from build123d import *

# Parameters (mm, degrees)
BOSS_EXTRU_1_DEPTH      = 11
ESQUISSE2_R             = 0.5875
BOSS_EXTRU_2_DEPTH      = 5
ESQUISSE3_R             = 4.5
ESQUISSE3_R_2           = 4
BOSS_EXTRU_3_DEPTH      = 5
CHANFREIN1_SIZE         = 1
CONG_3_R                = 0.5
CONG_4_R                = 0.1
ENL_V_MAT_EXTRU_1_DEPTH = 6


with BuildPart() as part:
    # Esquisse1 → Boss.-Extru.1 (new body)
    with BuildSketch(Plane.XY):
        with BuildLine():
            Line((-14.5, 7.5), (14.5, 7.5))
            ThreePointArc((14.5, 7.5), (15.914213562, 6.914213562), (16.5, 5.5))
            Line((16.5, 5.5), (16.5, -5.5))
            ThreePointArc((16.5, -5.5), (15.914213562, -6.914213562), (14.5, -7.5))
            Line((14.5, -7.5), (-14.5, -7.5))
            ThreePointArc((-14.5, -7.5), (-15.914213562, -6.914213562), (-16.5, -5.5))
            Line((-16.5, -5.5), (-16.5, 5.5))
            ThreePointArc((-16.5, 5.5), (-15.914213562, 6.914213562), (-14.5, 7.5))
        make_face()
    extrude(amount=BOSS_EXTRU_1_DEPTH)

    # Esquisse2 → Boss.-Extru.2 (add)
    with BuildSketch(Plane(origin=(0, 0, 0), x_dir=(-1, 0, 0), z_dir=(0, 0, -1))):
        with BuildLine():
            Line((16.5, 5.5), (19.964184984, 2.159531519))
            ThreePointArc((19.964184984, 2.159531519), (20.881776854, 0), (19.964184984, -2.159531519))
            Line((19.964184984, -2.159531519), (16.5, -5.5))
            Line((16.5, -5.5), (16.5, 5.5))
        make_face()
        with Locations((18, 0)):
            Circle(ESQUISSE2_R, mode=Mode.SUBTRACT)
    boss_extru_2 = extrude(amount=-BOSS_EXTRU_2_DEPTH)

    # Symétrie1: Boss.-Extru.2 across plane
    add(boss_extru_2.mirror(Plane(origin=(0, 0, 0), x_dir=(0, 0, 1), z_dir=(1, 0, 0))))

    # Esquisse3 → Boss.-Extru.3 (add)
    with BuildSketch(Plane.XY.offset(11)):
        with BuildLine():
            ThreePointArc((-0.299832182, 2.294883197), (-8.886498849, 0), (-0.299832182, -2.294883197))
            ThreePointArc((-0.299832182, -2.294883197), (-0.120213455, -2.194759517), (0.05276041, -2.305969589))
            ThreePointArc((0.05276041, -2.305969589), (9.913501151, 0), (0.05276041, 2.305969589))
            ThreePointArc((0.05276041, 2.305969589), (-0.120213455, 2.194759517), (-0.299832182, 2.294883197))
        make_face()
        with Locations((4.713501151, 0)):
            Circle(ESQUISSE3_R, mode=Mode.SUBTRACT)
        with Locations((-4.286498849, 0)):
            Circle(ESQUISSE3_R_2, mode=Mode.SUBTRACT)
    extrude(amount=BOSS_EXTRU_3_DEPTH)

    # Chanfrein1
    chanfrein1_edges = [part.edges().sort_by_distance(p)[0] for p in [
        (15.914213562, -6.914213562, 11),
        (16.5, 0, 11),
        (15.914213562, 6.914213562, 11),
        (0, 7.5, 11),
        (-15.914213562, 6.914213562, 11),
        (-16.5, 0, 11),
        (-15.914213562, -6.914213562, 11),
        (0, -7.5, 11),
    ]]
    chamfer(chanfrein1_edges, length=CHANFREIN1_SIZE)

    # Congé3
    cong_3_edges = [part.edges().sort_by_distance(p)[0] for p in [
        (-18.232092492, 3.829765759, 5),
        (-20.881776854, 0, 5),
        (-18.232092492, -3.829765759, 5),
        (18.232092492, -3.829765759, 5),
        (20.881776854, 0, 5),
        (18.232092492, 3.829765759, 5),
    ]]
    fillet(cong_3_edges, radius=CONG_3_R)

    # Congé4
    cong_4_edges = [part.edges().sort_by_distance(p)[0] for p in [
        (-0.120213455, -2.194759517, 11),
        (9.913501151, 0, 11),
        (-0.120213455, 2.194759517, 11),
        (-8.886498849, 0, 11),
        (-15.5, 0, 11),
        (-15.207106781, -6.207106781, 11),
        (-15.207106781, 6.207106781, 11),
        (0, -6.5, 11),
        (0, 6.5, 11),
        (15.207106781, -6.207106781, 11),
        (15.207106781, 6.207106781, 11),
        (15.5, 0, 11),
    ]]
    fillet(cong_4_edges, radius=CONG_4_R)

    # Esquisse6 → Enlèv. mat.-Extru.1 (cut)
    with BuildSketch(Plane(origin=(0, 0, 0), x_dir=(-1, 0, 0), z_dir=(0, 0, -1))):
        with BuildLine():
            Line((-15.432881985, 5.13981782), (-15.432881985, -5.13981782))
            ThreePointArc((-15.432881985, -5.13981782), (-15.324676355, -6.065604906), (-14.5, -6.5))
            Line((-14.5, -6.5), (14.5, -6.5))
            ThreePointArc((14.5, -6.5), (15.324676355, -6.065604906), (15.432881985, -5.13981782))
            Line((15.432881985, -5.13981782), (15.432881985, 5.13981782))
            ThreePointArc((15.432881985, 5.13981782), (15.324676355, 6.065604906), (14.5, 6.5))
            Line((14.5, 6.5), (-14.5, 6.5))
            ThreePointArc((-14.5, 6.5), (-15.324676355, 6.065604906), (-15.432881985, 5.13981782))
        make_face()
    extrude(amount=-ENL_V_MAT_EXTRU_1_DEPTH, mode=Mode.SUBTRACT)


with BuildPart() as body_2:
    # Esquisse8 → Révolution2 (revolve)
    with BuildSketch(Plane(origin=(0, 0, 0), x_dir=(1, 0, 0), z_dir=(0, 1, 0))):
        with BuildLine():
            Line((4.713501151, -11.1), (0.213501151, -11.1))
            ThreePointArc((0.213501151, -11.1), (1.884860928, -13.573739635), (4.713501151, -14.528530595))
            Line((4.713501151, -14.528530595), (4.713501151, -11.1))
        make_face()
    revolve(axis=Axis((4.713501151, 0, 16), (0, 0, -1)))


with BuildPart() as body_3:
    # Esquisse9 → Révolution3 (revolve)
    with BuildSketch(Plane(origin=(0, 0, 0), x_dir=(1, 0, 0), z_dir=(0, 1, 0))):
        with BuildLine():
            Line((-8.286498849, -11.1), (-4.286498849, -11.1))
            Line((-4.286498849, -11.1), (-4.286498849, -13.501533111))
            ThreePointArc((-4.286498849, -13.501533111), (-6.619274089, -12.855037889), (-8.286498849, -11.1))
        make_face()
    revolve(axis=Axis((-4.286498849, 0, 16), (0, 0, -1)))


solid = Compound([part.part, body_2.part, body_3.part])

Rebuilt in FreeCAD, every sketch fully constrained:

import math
import FreeCAD as App
import Part
import Sketcher

V = App.Vector


def edges_at(feature, points):
    """Names of the edges that pass closest to the given points."""
    edges = feature.Shape.Edges
    near = lambda p: min(range(len(edges)), key=lambda i: edges[i].distToShape(Part.Vertex(*p))[0])
    return sorted({f"Edge{near(p) + 1}" for p in points})

doc = App.newDocument("Part")
body = doc.addObject("PartDesign::Body", "Body")

sketch1 = doc.addObject("Sketcher::SketchObject", "Sketch")
body.addObject(sketch1)
sketch1.AttachmentSupport = (doc.XY_Plane, [""])
sketch1.MapMode = "FlatFace"
sketch1.addGeometry([
    Part.LineSegment(V(14.5, 7.5, 0), V(-14.5, 7.5, 0)),
    Part.ArcOfCircle(Part.Circle(V(-14.5, 5.5, 0), V(0, 0, 1), 2), math.radians(90), math.radians(180)),
    Part.LineSegment(V(-16.5, 5.5, 0), V(-16.5, -5.5, 0)),
    Part.ArcOfCircle(Part.Circle(V(-14.5, -5.5, 0), V(0, 0, 1), 2), math.radians(-180), math.radians(-90)),
    Part.LineSegment(V(-14.5, -7.5, 0), V(14.5, -7.5, 0)),
    Part.ArcOfCircle(Part.Circle(V(14.5, -5.5, 0), V(0, 0, 1), 2), math.radians(-90), math.radians(0)),
    Part.LineSegment(V(16.5, -5.5, 0), V(16.5, 5.5, 0)),
    Part.ArcOfCircle(Part.Circle(V(14.5, 5.5, 0), V(0, 0, 1), 2), math.radians(0), math.radians(90)),
], False)
sketch1.addConstraint([
    Sketcher.Constraint("Tangent", 0, 2, 1, 1),
    Sketcher.Constraint("Tangent", 1, 2, 2, 1),
    Sketcher.Constraint("Tangent", 2, 2, 3, 1),
    Sketcher.Constraint("Tangent", 3, 2, 4, 1),
    Sketcher.Constraint("Tangent", 4, 2, 5, 1),
    Sketcher.Constraint("Tangent", 5, 2, 6, 1),
    Sketcher.Constraint("Tangent", 6, 2, 7, 1),
    Sketcher.Constraint("Tangent", 7, 2, 0, 1),
    Sketcher.Constraint("Horizontal", 0),
    Sketcher.Constraint("Vertical", 2),
    Sketcher.Constraint("Horizontal", 4),
    Sketcher.Constraint("Vertical", 6),
    Sketcher.Constraint("Equal", 1, 3),
    Sketcher.Constraint("Equal", 3, 5),
    Sketcher.Constraint("Equal", 5, 7),
    Sketcher.Constraint("Symmetric", 1, 3, 5, 3, -1, 1),
    Sketcher.Constraint("Radius", 1, 2.0),
    Sketcher.Constraint("DistanceX", 0, 2, 0, 1, 29.0),
    Sketcher.Constraint("DistanceY", 2, 2, 2, 1, 11.0),
])
pad1 = doc.addObject("PartDesign::Pad", "Pad")
body.addObject(pad1)
pad1.Profile = sketch1
pad1.Length = 11

sketch2 = doc.addObject("Sketcher::SketchObject", "Sketch001")
body.addObject(sketch2)
sketch2.AttachmentSupport = (doc.XY_Plane, [""])
sketch2.MapMode = "FlatFace"
sketch2.addGeometry([
    Part.LineSegment(V(-20, 2.2, 0), V(-16.5, 5.5, 0)),
    Part.LineSegment(V(-16.5, 5.5, 0), V(-16.5, -5.5, 0)),
    Part.LineSegment(V(-16.5, -5.5, 0), V(-20, -2.2, 0)),
    Part.ArcOfCircle(Part.Circle(V(-17.9, 0, 0), V(0, 0, 1), 3), math.radians(134), math.radians(226)),
    Part.Circle(V(-18, 0, 0), V(0, 0, 1), 0.6),
], False)
sketch2.addConstraint([
    Sketcher.Constraint("Coincident", 0, 2, 1, 1),
    Sketcher.Constraint("Coincident", 1, 2, 2, 1),
    Sketcher.Constraint("Tangent", 2, 2, 3, 2),
    Sketcher.Constraint("Tangent", 3, 1, 0, 1),
    Sketcher.Constraint("Vertical", 1),
    Sketcher.Constraint("Symmetric", 2, 2, 3, 1, -1),
    Sketcher.Constraint("PointOnObject", 4, 3, -1),
    Sketcher.Constraint("Radius", 3, 3.0),
    Sketcher.Constraint("DistanceY", 1, 2, 1, 1, 11.0),
    Sketcher.Constraint("Diameter", 4, 1.175),
    Sketcher.Constraint("DistanceX", 4, 3, -1, 1, 18.0),
    Sketcher.Constraint("DistanceX", 0, 2, -1, 1, 16.5),
    Sketcher.Constraint("Distance", 0, 4.812412),
])
pad2 = doc.addObject("PartDesign::Pad", "Pad001")
body.addObject(pad2)
pad2.Profile = sketch2
pad2.Length = 5
doc.recompute()

mirrored = doc.addObject("PartDesign::Mirrored", "Mirrored")
body.addObject(mirrored)
mirrored.Originals = [pad2]
mirrored.MirrorPlane = (doc.YZ_Plane, [""])
body.Tip = mirrored

sketch3 = doc.addObject("Sketcher::SketchObject", "Sketch002")
body.addObject(sketch3)
sketch3.AttachmentSupport = (doc.XY_Plane, [""])
sketch3.MapMode = "FlatFace"
sketch3.AttachmentOffset = App.Placement(V(0, 0, 11), App.Rotation())
sketch3.addGeometry([
    Part.ArcOfCircle(Part.Circle(V(-4.29, 0, 0), V(0, 0, 1), 4.6), math.radians(30), math.radians(330)),
    Part.ArcOfCircle(Part.Circle(V(-0.13, -2.39, 0), V(0, 0, 1), 0.2), math.radians(26), math.radians(150)),
    Part.ArcOfCircle(Part.Circle(V(4.71, 0, 0), V(0, 0, 1), 5.2), math.radians(-154), math.radians(154)),
    Part.ArcOfCircle(Part.Circle(V(-0.13, 2.39, 0), V(0, 0, 1), 0.2), math.radians(-150), math.radians(-26)),
    Part.Circle(V(-4.29, 0, 0), V(0, 0, 1), 4),
    Part.Circle(V(4.71, 0, 0), V(0, 0, 1), 4.5),
], False)
sketch3.addConstraint([
    Sketcher.Constraint("Tangent", 0, 2, 1, 2),
    Sketcher.Constraint("Tangent", 1, 1, 2, 1),
    Sketcher.Constraint("Tangent", 2, 2, 3, 2),
    Sketcher.Constraint("Tangent", 3, 1, 0, 1),
    Sketcher.Constraint("Coincident", 4, 3, 0, 3),
    Sketcher.Constraint("Coincident", 5, 3, 2, 3),
    Sketcher.Constraint("Equal", 1, 3),
    Sketcher.Constraint("Symmetric", 1, 3, 3, 3, -1),
    Sketcher.Constraint("Diameter", 4, 8.0),
    Sketcher.Constraint("Diameter", 5, 9.0),
    Sketcher.Constraint("Radius", 0, 4.6),
    Sketcher.Constraint("Radius", 1, 0.2),
    Sketcher.Constraint("Radius", 2, 5.2),
    Sketcher.Constraint("DistanceX", 0, 3, 2, 3, 9.0),
    Sketcher.Constraint("DistanceX", 0, 3, -1, 1, 4.286499),
])
pad3 = doc.addObject("PartDesign::Pad", "Pad002")
body.addObject(pad3)
pad3.Profile = sketch3
pad3.Length = 5
doc.recompute()

chamfer = doc.addObject("PartDesign::Chamfer", "Chamfer")
body.addObject(chamfer)
chamfer.Base = (pad3, edges_at(pad3, [
    (15.914, -6.914, 11),
    (16.5, 0, 11),
    (15.914, 6.914, 11),
    (0, 7.5, 11),
    (-15.914, 6.914, 11),
    (-16.5, 0, 11),
    (-15.914, -6.914, 11),
    (0, -7.5, 11),
]))
chamfer.Size = 1
doc.recompute()

fillet = doc.addObject("PartDesign::Fillet", "Fillet")
body.addObject(fillet)
fillet.Base = (chamfer, edges_at(chamfer, [
    (-18.232, 3.83, 5),
    (-20.882, 0, 5),
    (-18.232, -3.83, 5),
    (18.232, -3.83, 5),
    (20.882, 0, 5),
    (18.232, 3.83, 5),
]))
fillet.Radius = 0.5
doc.recompute()

fillet2 = doc.addObject("PartDesign::Fillet", "Fillet001")
body.addObject(fillet2)
fillet2.Base = (fillet, edges_at(fillet, [
    (-0.12, -2.195, 11),
    (9.914, 0, 11),
    (-0.12, 2.195, 11),
    (-8.886, 0, 11),
    (-15.5, 0, 11),
    (-15.207, -6.207, 11),
    (-15.207, 6.207, 11),
    (0, -6.5, 11),
    (0, 6.5, 11),
    (15.207, -6.207, 11),
    (15.207, 6.207, 11),
    (15.5, 0, 11),
]))
fillet2.Radius = 0.1

sketch4 = doc.addObject("Sketcher::SketchObject", "Sketch003")
body.addObject(sketch4)
sketch4.AttachmentSupport = (doc.XY_Plane, [""])
sketch4.MapMode = "FlatFace"
sketch4.addGeometry([
    Part.LineSegment(V(15.4, 5.1, 0), V(15.4, -5.1, 0)),
    Part.ArcOfCircle(Part.Circle(V(14.5, -5.5, 0), V(0, 0, 1), 1), math.radians(-90), math.radians(21)),
    Part.LineSegment(V(14.5, -6.5, 0), V(-14.5, -6.5, 0)),
    Part.ArcOfCircle(Part.Circle(V(-14.5, -5.5, 0), V(0, 0, 1), 1), math.radians(159), math.radians(270)),
    Part.LineSegment(V(-15.4, -5.1, 0), V(-15.4, 5.1, 0)),
    Part.ArcOfCircle(Part.Circle(V(-14.5, 5.5, 0), V(0, 0, 1), 1), math.radians(90), math.radians(201)),
    Part.LineSegment(V(-14.5, 6.5, 0), V(14.5, 6.5, 0)),
    Part.ArcOfCircle(Part.Circle(V(14.5, 5.5, 0), V(0, 0, 1), 1), math.radians(-21), math.radians(90)),
], False)
sketch4.addConstraint([
    Sketcher.Constraint("Coincident", 0, 2, 1, 2),
    Sketcher.Constraint("Tangent", 1, 1, 2, 1),
    Sketcher.Constraint("Tangent", 2, 2, 3, 2),
    Sketcher.Constraint("Coincident", 3, 1, 4, 1),
    Sketcher.Constraint("Coincident", 4, 2, 5, 2),
    Sketcher.Constraint("Tangent", 5, 1, 6, 1),
    Sketcher.Constraint("Tangent", 6, 2, 7, 2),
    Sketcher.Constraint("Coincident", 7, 1, 0, 1),
    Sketcher.Constraint("Vertical", 0),
    Sketcher.Constraint("Horizontal", 2),
    Sketcher.Constraint("Vertical", 4),
    Sketcher.Constraint("Horizontal", 6),
    Sketcher.Constraint("Equal", 1, 3),
    Sketcher.Constraint("Equal", 3, 5),
    Sketcher.Constraint("Equal", 5, 7),
    Sketcher.Constraint("Symmetric", 1, 3, 5, 3, -1, 1),
    Sketcher.Constraint("Symmetric", 3, 1, 7, 1, -1, 1),
    Sketcher.Constraint("Horizontal", 0, 2, 3, 1),
    Sketcher.Constraint("Radius", 1, 1.0),
    Sketcher.Constraint("DistanceX", 2, 2, 2, 1, 29.0),
    Sketcher.Constraint("DistanceY", 3, 3, 5, 3, 11.0),
    Sketcher.Constraint("DistanceY", 0, 2, 0, 1, 10.279636),
])
pocket1 = doc.addObject("PartDesign::Pocket", "Pocket")
body.addObject(pocket1)
pocket1.Profile = sketch4
pocket1.Length = 6
pocket1.Reversed = True
body2 = doc.addObject("PartDesign::Body", "Body001")

sketch5 = doc.addObject("Sketcher::SketchObject", "Sketch004")
body2.addObject(sketch5)
sketch5.AttachmentSupport = (doc.getObject("XZ_Plane001"), [""])
sketch5.MapMode = "FlatFace"
sketch5.addGeometry([
    Part.LineSegment(V(4.7, 11.1, 0), V(0.2, 11.1, 0)),
    Part.ArcOfCircle(Part.Circle(V(4.7, 9.9, 0), V(0, 0, 1), 4.7), math.radians(90), math.radians(165)),
    Part.LineSegment(V(4.7, 14.5, 0), V(4.7, 11.1, 0)),
], False)
sketch5.addGeometry(Part.LineSegment(V(4.7, 14.5, 0), V(4.7, 9.9, 0)), True)
sketch5.addConstraint([
    Sketcher.Constraint("Coincident", 0, 2, 1, 2),
    Sketcher.Constraint("Coincident", 1, 1, 2, 1),
    Sketcher.Constraint("Coincident", 2, 2, 0, 1),
    Sketcher.Constraint("Horizontal", 0),
    Sketcher.Constraint("Vertical", 2),
    Sketcher.Constraint("Vertical", 3),
    Sketcher.Constraint("Coincident", 3, 1, 1, 1),
    Sketcher.Constraint("Coincident", 3, 2, 1, 3),
    Sketcher.Constraint("DistanceX", 0, 2, 0, 1, 4.5),
    Sketcher.Constraint("DistanceY", -1, 1, 0, 2, 11.1),
    Sketcher.Constraint("Radius", 1, 4.667425),
    Sketcher.Constraint("DistanceX", -1, 1, 1, 3, 4.713501),
])
revolution = doc.addObject("PartDesign::Revolution", "Revolution")
body2.addObject(revolution)
revolution.Profile = sketch5
revolution.ReferenceAxis = (sketch5, ["Axis0"])
revolution.Angle = 360
body3 = doc.addObject("PartDesign::Body", "Body002")

sketch6 = doc.addObject("Sketcher::SketchObject", "Sketch005")
body3.addObject(sketch6)
sketch6.AttachmentSupport = (doc.getObject("XZ_Plane002"), [""])
sketch6.MapMode = "FlatFace"
sketch6.addGeometry([
    Part.LineSegment(V(-4.3, 11.1, 0), V(-8.3, 11.1, 0)),
    Part.ArcOfCircle(Part.Circle(V(-4.3, 9, 0), V(0, 0, 1), 4.5), math.radians(90), math.radians(152)),
    Part.LineSegment(V(-4.3, 13.5, 0), V(-4.3, 11.1, 0)),
], False)
sketch6.addGeometry(Part.LineSegment(V(-4.3, 13.5, 0), V(-4.3, 9, 0)), True)
sketch6.addConstraint([
    Sketcher.Constraint("Coincident", 0, 2, 1, 2),
    Sketcher.Constraint("Coincident", 1, 1, 2, 1),
    Sketcher.Constraint("Coincident", 2, 2, 0, 1),
    Sketcher.Constraint("Horizontal", 0),
    Sketcher.Constraint("Vertical", 2),
    Sketcher.Constraint("Vertical", 3),
    Sketcher.Constraint("Coincident", 3, 1, 1, 1),
    Sketcher.Constraint("Coincident", 3, 2, 1, 3),
    Sketcher.Constraint("DistanceX", 0, 2, 0, 1, 4.0),
    Sketcher.Constraint("DistanceY", -1, 1, 0, 2, 11.1),
    Sketcher.Constraint("Radius", 1, 4.531972),
    Sketcher.Constraint("DistanceX", 1, 3, -1, 1, 4.286499),
])
revolution2 = doc.addObject("PartDesign::Revolution", "Revolution001")
body3.addObject(revolution2)
revolution2.Profile = sketch6
revolution2.ReferenceAxis = (sketch6, ["Axis0"])
revolution2.Angle = 360

doc.recompute()
